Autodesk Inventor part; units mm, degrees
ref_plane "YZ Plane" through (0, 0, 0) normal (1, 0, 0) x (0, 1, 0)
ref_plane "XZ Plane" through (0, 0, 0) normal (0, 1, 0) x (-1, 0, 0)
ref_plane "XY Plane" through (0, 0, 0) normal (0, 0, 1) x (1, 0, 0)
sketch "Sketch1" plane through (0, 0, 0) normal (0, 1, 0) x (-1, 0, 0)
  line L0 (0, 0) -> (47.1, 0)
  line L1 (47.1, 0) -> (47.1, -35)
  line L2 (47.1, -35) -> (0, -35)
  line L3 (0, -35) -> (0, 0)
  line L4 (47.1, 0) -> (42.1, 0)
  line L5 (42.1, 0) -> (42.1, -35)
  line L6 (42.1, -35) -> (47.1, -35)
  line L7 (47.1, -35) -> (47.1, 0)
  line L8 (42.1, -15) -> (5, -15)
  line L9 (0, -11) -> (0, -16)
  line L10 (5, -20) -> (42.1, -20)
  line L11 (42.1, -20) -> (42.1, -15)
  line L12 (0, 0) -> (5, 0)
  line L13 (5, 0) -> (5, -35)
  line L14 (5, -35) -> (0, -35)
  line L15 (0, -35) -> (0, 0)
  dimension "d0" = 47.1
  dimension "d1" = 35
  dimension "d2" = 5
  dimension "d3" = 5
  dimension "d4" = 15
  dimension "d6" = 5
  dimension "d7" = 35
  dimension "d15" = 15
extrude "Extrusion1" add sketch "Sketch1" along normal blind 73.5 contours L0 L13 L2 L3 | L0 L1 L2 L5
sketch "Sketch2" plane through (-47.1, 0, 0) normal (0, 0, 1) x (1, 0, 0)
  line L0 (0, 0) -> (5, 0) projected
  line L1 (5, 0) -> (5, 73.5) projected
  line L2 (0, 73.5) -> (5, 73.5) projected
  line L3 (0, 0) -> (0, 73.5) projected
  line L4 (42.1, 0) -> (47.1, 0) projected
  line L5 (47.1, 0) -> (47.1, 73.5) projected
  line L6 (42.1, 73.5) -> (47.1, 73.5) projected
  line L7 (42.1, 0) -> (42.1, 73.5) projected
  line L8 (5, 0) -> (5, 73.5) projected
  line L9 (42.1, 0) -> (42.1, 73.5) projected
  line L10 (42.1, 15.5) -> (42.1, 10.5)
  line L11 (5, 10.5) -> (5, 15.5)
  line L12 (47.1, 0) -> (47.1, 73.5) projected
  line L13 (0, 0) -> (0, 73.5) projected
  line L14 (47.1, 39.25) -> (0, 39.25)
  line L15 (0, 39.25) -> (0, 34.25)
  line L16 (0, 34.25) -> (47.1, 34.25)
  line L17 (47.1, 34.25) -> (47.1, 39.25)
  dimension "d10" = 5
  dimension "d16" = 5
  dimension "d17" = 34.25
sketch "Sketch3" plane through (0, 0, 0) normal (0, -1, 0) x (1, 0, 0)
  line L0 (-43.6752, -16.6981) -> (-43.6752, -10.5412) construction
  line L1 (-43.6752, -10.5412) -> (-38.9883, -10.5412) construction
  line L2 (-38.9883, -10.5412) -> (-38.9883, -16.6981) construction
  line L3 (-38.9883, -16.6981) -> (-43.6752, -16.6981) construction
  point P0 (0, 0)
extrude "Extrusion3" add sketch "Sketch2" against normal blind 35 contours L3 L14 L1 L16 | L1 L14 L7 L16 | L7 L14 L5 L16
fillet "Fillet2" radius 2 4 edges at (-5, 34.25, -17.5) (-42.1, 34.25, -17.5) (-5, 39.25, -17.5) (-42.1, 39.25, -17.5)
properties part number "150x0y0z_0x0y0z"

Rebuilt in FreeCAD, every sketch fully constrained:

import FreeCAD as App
import Part
import Sketcher
from FreeCAD import Vector


def edges_at(feature, points):
    """Names of the edges that pass closest to the given points."""
    edges = feature.Shape.Edges
    near = lambda p: min(range(len(edges)), key=lambda i: edges[i].distToShape(Part.Vertex(*p))[0])
    return sorted({f"Edge{near(p) + 1}" for p in points})

doc = App.newDocument("Part")
body = doc.addObject("PartDesign::Body", "Body")
body.AllowCompound = True

sketch1 = body.newObject("Sketcher::SketchObject", "Sketch")
sketch1.AttachmentSupport = (doc.getObject("XZ_Plane"), [""])
sketch1.MapMode = "FlatFace"
sketch1.addGeometry([
    Part.LineSegment(Vector(-5, 0, 0), Vector(0, 0, 0)),
    Part.LineSegment(Vector(0, 0, 0), Vector(0, -35, 0)),
    Part.LineSegment(Vector(0, -35, 0), Vector(-5, -35, 0)),
    Part.LineSegment(Vector(-5, -35, 0), Vector(-5, 0, 0)),
    Part.LineSegment(Vector(-47.1, 0, 0), Vector(-42.1, 0, 0)),
    Part.LineSegment(Vector(-42.1, 0, 0), Vector(-42.1, -35, 0)),
    Part.LineSegment(Vector(-42.1, -35, 0), Vector(-47.1, -35, 0)),
    Part.LineSegment(Vector(-47.1, -35, 0), Vector(-47.1, 0, 0)),
], False)
sketch1.addConstraint([
    Sketcher.Constraint("Coincident", 0, 2, 1, 1),
    Sketcher.Constraint("Coincident", 1, 2, 2, 1),
    Sketcher.Constraint("Coincident", 2, 2, 3, 1),
    Sketcher.Constraint("Coincident", 3, 2, 0, 1),
    Sketcher.Constraint("Coincident", 4, 2, 5, 1),
    Sketcher.Constraint("Coincident", 5, 2, 6, 1),
    Sketcher.Constraint("Coincident", 6, 2, 7, 1),
    Sketcher.Constraint("Coincident", 7, 2, 4, 1),
    Sketcher.Constraint("Horizontal", 0),
    Sketcher.Constraint("Vertical", 1),
    Sketcher.Constraint("Horizontal", 2),
    Sketcher.Constraint("Vertical", 3),
    Sketcher.Constraint("Horizontal", 4),
    Sketcher.Constraint("Vertical", 5),
    Sketcher.Constraint("Horizontal", 6),
    Sketcher.Constraint("Vertical", 7),
    Sketcher.Constraint("Coincident", 0, 2, -1, 1),
    Sketcher.Constraint("PointOnObject", 4, 2, -1),
    Sketcher.Constraint("Horizontal", 2, 2, 5, 2),
    Sketcher.Constraint("Equal", 2, 4),
    Sketcher.Constraint("DistanceX", 0, 1, 0, 2, 5.0),
    Sketcher.Constraint("DistanceY", 1, 2, 1, 1, 35.0),
    Sketcher.Constraint("DistanceX", 6, 2, -1, 1, 47.1),
])
pad1 = body.newObject("PartDesign::Pad", "Pad")
pad1.Profile = sketch1
pad1.Length = 73.5
pad1.Reversed = True

sketch2 = body.newObject("Sketcher::SketchObject", "Sketch001")
sketch2.AttachmentSupport = (doc.getObject("XY_Plane"), [""])
sketch2.MapMode = "FlatFace"
sketch2.addGeometry([
    Part.LineSegment(Vector(-47.1, 39.25, 0), Vector(-47.1, 34.25, 0)),
    Part.LineSegment(Vector(-47.1, 34.25, 0), Vector(0, 34.25, 0)),
    Part.LineSegment(Vector(0, 34.25, 0), Vector(0, 39.25, 0)),
    Part.LineSegment(Vector(0, 39.25, 0), Vector(-47.1, 39.25, 0)),
], False)
sketch2.addConstraint([
    Sketcher.Constraint("Coincident", 0, 2, 1, 1),
    Sketcher.Constraint("Coincident", 1, 2, 2, 1),
    Sketcher.Constraint("Coincident", 2, 2, 3, 1),
    Sketcher.Constraint("Coincident", 3, 2, 0, 1),
    Sketcher.Constraint("Vertical", 0),
    Sketcher.Constraint("Horizontal", 1),
    Sketcher.Constraint("Vertical", 2),
    Sketcher.Constraint("Horizontal", 3),
    Sketcher.Constraint("PointOnObject", 1, 2, -2),
    Sketcher.Constraint("DistanceY", 0, 2, 0, 1, 5.0),
    Sketcher.Constraint("DistanceY", -1, 1, 0, 2, 34.25),
    Sketcher.Constraint("DistanceX", 1, 1, 1, 2, 47.1),
])
pad2 = body.newObject("PartDesign::Pad", "Pad001")
pad2.Profile = sketch2
pad2.Length = 35
pad2.Reversed = True
doc.recompute()

fillet = body.newObject("PartDesign::Fillet", "Fillet")
fillet.Base = (pad2, edges_at(pad2, [
    (-5, 34.25, -17.5),
    (-42.1, 34.25, -17.5),
    (-5, 39.25, -17.5),
    (-42.1, 39.25, -17.5),
]))
fillet.Radius = 2

doc.recompute()
